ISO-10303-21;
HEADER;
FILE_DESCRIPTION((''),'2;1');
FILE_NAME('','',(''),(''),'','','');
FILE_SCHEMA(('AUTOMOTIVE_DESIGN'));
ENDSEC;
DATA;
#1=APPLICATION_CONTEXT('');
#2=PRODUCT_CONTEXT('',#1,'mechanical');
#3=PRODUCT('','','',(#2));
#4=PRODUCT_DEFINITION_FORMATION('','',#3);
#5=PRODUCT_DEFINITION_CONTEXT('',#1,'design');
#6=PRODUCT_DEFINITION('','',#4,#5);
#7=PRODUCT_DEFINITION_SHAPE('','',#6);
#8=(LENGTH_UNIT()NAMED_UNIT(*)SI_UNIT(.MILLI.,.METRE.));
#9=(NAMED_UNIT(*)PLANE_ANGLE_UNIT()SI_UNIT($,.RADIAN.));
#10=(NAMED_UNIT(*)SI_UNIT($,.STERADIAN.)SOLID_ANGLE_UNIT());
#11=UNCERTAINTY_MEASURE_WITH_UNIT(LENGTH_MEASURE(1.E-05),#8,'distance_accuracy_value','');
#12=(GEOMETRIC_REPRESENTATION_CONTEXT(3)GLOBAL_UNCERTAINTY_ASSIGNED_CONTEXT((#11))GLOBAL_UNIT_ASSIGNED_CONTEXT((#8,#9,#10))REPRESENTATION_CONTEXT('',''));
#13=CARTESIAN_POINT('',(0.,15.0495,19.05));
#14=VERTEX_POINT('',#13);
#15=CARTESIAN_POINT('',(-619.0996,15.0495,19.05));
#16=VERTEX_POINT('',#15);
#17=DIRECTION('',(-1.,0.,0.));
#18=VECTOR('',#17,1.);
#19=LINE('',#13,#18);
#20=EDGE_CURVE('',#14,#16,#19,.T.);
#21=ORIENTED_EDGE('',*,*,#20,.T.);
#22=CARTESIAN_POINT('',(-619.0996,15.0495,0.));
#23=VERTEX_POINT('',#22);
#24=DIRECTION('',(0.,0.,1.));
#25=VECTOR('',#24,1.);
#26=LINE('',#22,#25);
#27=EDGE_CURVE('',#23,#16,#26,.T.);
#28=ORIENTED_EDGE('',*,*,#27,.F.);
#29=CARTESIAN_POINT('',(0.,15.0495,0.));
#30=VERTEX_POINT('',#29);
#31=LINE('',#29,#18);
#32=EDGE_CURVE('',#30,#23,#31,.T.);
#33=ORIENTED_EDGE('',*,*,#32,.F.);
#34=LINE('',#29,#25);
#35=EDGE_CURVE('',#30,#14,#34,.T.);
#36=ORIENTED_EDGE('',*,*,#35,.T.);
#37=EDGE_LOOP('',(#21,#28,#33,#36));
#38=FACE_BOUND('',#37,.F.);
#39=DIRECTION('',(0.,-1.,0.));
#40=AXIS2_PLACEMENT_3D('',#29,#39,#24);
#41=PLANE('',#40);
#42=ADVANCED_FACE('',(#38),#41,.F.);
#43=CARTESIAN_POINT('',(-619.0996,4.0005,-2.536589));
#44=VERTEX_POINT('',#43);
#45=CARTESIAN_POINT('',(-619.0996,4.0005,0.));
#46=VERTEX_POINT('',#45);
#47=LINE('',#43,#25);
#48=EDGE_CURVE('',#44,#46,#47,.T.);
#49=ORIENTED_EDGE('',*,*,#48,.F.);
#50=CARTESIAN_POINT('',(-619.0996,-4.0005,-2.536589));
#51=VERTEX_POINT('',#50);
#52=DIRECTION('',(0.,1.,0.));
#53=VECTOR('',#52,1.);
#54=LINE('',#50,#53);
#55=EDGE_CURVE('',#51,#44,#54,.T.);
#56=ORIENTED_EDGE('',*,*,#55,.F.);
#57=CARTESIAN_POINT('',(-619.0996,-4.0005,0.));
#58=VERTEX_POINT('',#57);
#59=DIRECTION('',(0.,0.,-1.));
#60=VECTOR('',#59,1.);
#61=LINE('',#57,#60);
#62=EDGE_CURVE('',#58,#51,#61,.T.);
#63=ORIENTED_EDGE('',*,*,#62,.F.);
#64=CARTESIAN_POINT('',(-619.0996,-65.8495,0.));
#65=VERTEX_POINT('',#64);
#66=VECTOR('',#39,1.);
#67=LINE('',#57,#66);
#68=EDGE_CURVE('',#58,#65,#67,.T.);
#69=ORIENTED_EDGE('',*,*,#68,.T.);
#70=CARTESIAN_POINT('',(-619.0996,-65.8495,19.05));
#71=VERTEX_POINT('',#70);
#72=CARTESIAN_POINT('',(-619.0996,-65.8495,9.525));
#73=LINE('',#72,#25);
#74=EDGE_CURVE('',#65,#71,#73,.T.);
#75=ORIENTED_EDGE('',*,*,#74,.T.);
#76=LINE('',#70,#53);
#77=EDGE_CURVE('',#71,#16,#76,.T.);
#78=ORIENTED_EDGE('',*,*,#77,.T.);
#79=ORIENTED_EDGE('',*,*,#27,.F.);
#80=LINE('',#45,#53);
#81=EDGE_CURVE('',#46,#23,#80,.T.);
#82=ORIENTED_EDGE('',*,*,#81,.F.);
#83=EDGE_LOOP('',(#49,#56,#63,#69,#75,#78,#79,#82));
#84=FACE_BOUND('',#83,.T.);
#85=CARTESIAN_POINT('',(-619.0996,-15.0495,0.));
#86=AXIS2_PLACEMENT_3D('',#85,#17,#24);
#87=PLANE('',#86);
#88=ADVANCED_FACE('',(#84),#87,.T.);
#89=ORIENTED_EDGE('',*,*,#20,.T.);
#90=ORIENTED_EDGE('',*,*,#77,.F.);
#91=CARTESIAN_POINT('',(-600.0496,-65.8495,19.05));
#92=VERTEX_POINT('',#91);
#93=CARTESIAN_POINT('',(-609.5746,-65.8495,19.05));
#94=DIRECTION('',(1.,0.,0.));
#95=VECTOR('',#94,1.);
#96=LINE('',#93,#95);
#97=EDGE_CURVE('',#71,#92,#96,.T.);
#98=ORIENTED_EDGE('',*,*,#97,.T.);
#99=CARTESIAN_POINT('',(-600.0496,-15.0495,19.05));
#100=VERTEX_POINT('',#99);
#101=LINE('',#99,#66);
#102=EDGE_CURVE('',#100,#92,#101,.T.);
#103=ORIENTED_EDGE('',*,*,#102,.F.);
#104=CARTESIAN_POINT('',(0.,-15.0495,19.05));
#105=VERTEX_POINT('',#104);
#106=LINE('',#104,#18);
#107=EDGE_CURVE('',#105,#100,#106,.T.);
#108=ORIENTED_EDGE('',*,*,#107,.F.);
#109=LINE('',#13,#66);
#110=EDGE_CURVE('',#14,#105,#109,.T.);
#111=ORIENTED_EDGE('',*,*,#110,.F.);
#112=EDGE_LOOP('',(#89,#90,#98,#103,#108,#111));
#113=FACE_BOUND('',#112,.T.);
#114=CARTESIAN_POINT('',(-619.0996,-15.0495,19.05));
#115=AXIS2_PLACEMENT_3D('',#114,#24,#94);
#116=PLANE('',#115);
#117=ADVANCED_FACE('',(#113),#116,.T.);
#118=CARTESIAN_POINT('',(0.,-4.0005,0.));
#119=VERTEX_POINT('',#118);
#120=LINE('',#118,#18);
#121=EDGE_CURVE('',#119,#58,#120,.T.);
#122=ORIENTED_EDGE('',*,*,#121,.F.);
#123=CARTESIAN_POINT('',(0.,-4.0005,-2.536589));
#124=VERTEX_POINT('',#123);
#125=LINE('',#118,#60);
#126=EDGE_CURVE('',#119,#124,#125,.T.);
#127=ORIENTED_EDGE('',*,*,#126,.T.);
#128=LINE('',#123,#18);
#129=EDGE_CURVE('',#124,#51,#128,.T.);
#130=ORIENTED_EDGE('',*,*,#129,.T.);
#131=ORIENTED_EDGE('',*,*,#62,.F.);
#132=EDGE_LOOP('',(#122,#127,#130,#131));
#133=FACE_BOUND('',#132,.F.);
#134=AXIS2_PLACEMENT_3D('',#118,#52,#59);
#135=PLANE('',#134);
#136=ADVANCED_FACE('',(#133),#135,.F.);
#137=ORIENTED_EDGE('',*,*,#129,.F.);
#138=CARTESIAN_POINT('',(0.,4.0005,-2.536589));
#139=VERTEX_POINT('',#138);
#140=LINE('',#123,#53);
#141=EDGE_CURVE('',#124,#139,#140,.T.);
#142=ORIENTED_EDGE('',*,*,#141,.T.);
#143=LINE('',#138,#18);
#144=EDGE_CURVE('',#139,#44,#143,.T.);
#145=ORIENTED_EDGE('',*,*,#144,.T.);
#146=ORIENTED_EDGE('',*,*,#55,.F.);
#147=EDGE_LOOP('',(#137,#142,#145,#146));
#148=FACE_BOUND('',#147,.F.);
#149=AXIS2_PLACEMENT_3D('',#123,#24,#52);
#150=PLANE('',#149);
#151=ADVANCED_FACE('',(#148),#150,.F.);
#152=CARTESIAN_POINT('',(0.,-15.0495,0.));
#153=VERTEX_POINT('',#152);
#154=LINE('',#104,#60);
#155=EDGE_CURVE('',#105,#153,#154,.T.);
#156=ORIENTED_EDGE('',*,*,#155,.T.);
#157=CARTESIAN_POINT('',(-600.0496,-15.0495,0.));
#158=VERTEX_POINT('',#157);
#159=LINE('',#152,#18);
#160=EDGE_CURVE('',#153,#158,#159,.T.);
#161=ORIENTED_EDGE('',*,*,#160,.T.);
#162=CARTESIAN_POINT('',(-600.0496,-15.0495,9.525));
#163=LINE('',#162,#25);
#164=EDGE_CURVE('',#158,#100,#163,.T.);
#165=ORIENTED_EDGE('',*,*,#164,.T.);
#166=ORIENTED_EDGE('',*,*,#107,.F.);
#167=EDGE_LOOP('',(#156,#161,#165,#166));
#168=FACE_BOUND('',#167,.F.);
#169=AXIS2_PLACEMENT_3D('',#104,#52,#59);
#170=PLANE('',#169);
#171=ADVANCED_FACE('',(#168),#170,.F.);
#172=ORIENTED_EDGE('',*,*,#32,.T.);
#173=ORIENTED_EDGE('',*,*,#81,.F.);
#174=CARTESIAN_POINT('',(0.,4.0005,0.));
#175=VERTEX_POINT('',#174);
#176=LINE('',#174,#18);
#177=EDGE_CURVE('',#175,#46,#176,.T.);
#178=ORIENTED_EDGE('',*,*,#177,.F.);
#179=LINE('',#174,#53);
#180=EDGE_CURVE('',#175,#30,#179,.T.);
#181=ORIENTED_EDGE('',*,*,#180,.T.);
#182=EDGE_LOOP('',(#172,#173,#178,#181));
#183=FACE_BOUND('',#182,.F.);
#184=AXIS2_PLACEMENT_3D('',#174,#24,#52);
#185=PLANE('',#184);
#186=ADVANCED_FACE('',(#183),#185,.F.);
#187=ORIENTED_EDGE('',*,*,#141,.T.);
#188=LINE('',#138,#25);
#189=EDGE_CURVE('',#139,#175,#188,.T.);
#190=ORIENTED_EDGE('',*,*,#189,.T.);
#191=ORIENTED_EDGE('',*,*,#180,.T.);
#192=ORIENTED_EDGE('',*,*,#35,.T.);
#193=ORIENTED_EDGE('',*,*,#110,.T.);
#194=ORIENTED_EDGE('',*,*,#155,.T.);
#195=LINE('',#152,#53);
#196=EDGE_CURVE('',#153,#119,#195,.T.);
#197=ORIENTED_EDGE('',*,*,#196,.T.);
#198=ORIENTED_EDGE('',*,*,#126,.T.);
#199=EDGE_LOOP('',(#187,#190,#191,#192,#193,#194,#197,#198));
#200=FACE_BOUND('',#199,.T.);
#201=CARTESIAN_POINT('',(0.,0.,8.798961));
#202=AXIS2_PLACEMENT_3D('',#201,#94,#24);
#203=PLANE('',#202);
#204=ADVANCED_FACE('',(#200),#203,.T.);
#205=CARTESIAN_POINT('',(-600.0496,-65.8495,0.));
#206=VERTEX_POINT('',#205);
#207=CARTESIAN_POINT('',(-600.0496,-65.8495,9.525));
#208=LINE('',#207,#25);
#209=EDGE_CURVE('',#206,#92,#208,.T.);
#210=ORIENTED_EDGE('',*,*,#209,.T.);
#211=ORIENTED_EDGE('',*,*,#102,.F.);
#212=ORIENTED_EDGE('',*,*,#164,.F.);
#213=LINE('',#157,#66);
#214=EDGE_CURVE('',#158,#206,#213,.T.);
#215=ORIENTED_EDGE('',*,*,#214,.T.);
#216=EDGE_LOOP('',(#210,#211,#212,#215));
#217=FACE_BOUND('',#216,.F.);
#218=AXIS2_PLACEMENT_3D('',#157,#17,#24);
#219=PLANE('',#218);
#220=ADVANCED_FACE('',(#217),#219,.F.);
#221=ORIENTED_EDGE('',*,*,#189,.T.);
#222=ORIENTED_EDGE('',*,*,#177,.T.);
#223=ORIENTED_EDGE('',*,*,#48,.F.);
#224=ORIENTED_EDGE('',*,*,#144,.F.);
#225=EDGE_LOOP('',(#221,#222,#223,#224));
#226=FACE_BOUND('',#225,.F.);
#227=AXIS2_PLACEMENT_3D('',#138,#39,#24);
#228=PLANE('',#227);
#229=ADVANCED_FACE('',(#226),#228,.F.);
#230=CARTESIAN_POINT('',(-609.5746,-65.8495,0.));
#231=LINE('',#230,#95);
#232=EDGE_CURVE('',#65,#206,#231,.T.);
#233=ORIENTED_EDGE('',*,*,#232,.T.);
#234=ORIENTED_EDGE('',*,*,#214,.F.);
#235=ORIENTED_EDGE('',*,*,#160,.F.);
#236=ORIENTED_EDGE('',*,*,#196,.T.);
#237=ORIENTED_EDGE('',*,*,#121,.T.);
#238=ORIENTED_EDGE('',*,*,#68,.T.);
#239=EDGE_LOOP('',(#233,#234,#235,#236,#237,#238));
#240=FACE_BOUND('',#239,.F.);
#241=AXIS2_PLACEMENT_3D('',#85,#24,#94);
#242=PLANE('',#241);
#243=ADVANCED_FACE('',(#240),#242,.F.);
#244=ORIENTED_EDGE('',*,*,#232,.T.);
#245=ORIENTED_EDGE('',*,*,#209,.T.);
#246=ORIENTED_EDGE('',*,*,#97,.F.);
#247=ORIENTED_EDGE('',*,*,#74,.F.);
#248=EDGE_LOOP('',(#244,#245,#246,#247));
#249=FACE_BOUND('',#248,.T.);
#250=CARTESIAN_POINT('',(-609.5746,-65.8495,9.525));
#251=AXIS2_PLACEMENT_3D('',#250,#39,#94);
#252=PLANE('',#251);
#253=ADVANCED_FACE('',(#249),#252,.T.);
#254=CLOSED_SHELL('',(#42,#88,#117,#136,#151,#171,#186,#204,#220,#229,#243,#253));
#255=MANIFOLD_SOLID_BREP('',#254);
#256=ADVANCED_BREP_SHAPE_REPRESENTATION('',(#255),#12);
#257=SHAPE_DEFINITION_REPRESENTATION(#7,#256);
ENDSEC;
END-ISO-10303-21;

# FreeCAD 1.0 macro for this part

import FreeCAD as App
import Part
import Sketcher
Q = App.Units.Quantity


def add_polygon(sketch, points):
    """Adds a closed chain of lines whose ends are joined by coincident constraints."""
    first, n = sketch.GeometryCount, len(points)
    for a, b in zip(points, points[1:] + points[:1]):
        sketch.addGeometry(Part.LineSegment(App.Vector(*a, 0), App.Vector(*b, 0)), False)
    for i in range(n):
        sketch.addConstraint(Sketcher.Constraint("Coincident", first + i, 2, first + (i + 1) % n, 1))

doc = App.newDocument("Part")
body = doc.addObject("PartDesign::Body", "Body")

# Sketch on YZ plane
sketch1 = body.newObject("Sketcher::SketchObject", "Sketch")
sketch1.AttachmentSupport = (doc.getObject("YZ_Plane"), [""])
sketch1.MapMode = "FlatFace"
add_polygon(sketch1, [(15.0495, 19.05), (-15.0495, 19.05), (-15.0495, 0), (-4.0005, 0), (-4.0005, -2.536589), (4.0005, -2.536589), (4.0005, 0), (15.0495, 0)])  # lines 0-7
sketch1.addConstraint([
    Sketcher.Constraint("Horizontal", 0),
    Sketcher.Constraint("Vertical", 1),
    Sketcher.Constraint("Horizontal", 2),
    Sketcher.Constraint("Vertical", 3),
    Sketcher.Constraint("Horizontal", 4),
    Sketcher.Constraint("Vertical", 5),
    Sketcher.Constraint("Horizontal", 6),
    Sketcher.Constraint("Vertical", 7),
    Sketcher.Constraint("Symmetric", 2, 2, 5, 2, -1, 1),
    Sketcher.Constraint("Symmetric", 1, 2, 6, 2, -2),
    Sketcher.Constraint("DistanceY", 1, 2, 1, 1, Q("0.75 in")),
    Sketcher.Constraint("DistanceX", 0, 2, 0, 1, Q("1.185 in")),
    Sketcher.Constraint("DistanceX", 2, 1, 2, 2, Q("0.435 in")),
    Sketcher.Constraint("DistanceY", 3, 2, 3, 1, 2.536589),
])

# Sketch on XY plane
sketch2 = body.newObject("Sketcher::SketchObject", "Sketch001")
sketch2.AttachmentSupport = (doc.getObject("XY_Plane"), [""])
sketch2.MapMode = "FlatFace"
sketch2.AttachmentOffset = App.Placement(App.Vector(0, 0, 0.75 * 25.4), App.Rotation())
sketch2.addGeometry(Part.LineSegment(App.Vector(0, 0, 0), App.Vector(-619.0996, 0, 0)), False)
sketch2.addConstraint([
    Sketcher.Constraint("Horizontal", 0),
    Sketcher.Constraint("Coincident", 0, 1, -1, 1),
    Sketcher.Constraint("DistanceX", 0, 2, 0, 1, Q("24.374 in")),
])
doc.recompute()

additivepipe = body.newObject("PartDesign::AdditivePipe", "AdditivePipe")
additivepipe.Profile = sketch1
additivepipe.Spine = (sketch2, ["Edge1"])

# Sketch on XZ plane
sketch3 = body.newObject("Sketcher::SketchObject", "Sketch002")
sketch3.AttachmentSupport = (doc.getObject("XZ_Plane"), [""])
sketch3.MapMode = "FlatFace"
sketch3.AttachmentOffset = App.Placement(App.Vector(0, 0, 0.5925 * 25.4), App.Rotation())
add_polygon(sketch3, [(-619.0996, 19.05), (-619.0996, 0), (-600.0496, 0), (-600.0496, 19.05)])  # lines 0-3
sketch3.addConstraint([
    Sketcher.Constraint("Vertical", 0),
    Sketcher.Constraint("Horizontal", 1),
    Sketcher.Constraint("Vertical", 2),
    Sketcher.Constraint("Horizontal", 3),
    Sketcher.Constraint("PointOnObject", 0, 2, -1),
    Sketcher.Constraint("Equal", 3, 0),
    Sketcher.Constraint("DistanceX", 1, 1, 1, 2, Q("0.75 in")),
    Sketcher.Constraint("DistanceX", 0, 2, -1, 1, Q("24.374 in")),
])
pad1 = body.newObject("PartDesign::Pad", "Pad")
pad1.Profile = sketch3
pad1.Length = Q("2 in")

doc.recompute()
